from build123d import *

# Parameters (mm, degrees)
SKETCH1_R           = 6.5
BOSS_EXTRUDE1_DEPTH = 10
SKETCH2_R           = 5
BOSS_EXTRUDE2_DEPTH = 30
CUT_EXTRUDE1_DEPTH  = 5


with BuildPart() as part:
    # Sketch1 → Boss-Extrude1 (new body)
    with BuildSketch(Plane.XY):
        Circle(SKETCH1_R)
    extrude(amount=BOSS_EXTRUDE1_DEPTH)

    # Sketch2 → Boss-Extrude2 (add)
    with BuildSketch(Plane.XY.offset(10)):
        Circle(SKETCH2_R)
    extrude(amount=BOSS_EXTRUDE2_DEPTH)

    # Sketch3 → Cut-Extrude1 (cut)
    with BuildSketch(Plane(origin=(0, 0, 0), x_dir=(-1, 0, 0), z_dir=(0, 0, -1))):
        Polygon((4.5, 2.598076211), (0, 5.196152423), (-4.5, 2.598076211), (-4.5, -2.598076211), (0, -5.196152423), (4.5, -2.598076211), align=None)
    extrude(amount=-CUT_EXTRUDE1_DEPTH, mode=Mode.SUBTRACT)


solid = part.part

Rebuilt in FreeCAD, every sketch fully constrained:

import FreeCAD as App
import Part
import Sketcher

V = App.Vector
Q = App.Units.Quantity

doc = App.newDocument("Part")
body = doc.addObject("PartDesign::Body", "Body")

sketch1 = body.newObject("Sketcher::SketchObject", "Sketch")
sketch1.AttachmentSupport = (doc.getObject("XY_Plane"), [""])
sketch1.MapMode = "FlatFace"
sketch1.addGeometry(Part.Circle(V(0, 0, 0), V(0, 0, 1), 6), False)
sketch1.addConstraint(Sketcher.Constraint("Coincident", 0, 3, -1, 1))
sketch1.addConstraint(Sketcher.Constraint("Diameter", 0, Q("13 mm")))
pad1 = body.newObject("PartDesign::Pad", "Pad")
pad1.Profile = sketch1
pad1.Length = 10

sketch2 = body.newObject("Sketcher::SketchObject", "Sketch001")
sketch2.AttachmentSupport = (doc.getObject("XY_Plane"), [""])
sketch2.MapMode = "FlatFace"
sketch2.AttachmentOffset = App.Placement(V(0, 0, 10), App.Rotation())
sketch2.addGeometry(Part.Circle(V(0, 0, 0), V(0, 0, 1), 5), False)
sketch2.addConstraint(Sketcher.Constraint("Coincident", 0, 3, -1, 1))
sketch2.addConstraint(Sketcher.Constraint("Diameter", 0, Q("10 mm")))
pad2 = body.newObject("PartDesign::Pad", "Pad001")
pad2.Profile = sketch2
pad2.Length = 30

sketch3 = body.newObject("Sketcher::SketchObject", "Sketch002")
sketch3.AttachmentSupport = (doc.getObject("XY_Plane"), [""])
sketch3.MapMode = "FlatFace"
sketch3.addGeometry(Part.LineSegment(V(-4, 3, 0), V(0, 5, 0)), False)
sketch3.addGeometry(Part.LineSegment(V(0, 5, 0), V(4, 3, 0)), False)
sketch3.addGeometry(Part.LineSegment(V(4, 3, 0), V(4, -3, 0)), False)
sketch3.addGeometry(Part.LineSegment(V(4, -3, 0), V(0, -5, 0)), False)
sketch3.addGeometry(Part.LineSegment(V(0, -5, 0), V(-4, -3, 0)), False)
sketch3.addGeometry(Part.LineSegment(V(-4, -3, 0), V(-4, 3, 0)), False)
sketch3.addConstraint(Sketcher.Constraint("Coincident", 0, 2, 1, 1))
sketch3.addConstraint(Sketcher.Constraint("Coincident", 1, 2, 2, 1))
sketch3.addConstraint(Sketcher.Constraint("Coincident", 2, 2, 3, 1))
sketch3.addConstraint(Sketcher.Constraint("Coincident", 3, 2, 4, 1))
sketch3.addConstraint(Sketcher.Constraint("Coincident", 4, 2, 5, 1))
sketch3.addConstraint(Sketcher.Constraint("Coincident", 5, 2, 0, 1))
sketch3.addConstraint(Sketcher.Constraint("Vertical", 2))
sketch3.addConstraint(Sketcher.Constraint("Vertical", 5))
sketch3.addConstraint(Sketcher.Constraint("Symmetric", 0, 2, 3, 2, -1, 1))
sketch3.addConstraint(Sketcher.Constraint("Symmetric", 1, 2, 4, 2, -1, 1))
sketch3.addConstraint(Sketcher.Constraint("PointOnObject", 0, 2, -2))
sketch3.addConstraint(Sketcher.Constraint("Parallel", 0, 3))
sketch3.addConstraint(Sketcher.Constraint("Horizontal", 2, 2, 4, 2))
sketch3.addConstraint(Sketcher.Constraint("Angle", 0, Q("30 deg")))
sketch3.addConstraint(Sketcher.Constraint("DistanceX", 4, 2, 2, 2, Q("9 mm")))
sketch3.addConstraint(Sketcher.Constraint("DistanceY", 2, 2, 2, 1, Q("5.196152 mm")))
pocket1 = body.newObject("PartDesign::Pocket", "Pocket")
pocket1.Profile = sketch3
pocket1.Length = 5
pocket1.Reversed = True

doc.recompute()
